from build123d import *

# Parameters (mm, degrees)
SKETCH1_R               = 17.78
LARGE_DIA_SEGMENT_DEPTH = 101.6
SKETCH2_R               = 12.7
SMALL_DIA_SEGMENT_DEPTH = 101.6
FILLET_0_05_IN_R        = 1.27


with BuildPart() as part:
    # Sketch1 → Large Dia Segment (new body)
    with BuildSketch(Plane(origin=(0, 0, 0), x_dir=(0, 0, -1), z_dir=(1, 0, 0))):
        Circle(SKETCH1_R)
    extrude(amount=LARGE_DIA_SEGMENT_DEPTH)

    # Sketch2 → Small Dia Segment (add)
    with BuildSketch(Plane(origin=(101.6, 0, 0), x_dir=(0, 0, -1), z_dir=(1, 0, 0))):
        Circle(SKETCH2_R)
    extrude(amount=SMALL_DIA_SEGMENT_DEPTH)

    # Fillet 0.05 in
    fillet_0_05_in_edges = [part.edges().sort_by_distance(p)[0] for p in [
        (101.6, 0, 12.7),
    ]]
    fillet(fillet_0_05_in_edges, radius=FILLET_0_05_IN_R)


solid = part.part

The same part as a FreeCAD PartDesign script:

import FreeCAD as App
import Part
import Sketcher

V = App.Vector
Q = App.Units.Quantity


def edges_at(feature, points):
    """Names of the edges that pass closest to the given points."""
    edges = feature.Shape.Edges
    near = lambda p: min(range(len(edges)), key=lambda i: edges[i].distToShape(Part.Vertex(*p))[0])
    return sorted({f"Edge{near(p) + 1}" for p in points})

doc = App.newDocument("Part")
body = doc.addObject("PartDesign::Body", "Body")

# Sketch on YZ plane
sketch1 = body.newObject("Sketcher::SketchObject", "Sketch")
sketch1.AttachmentSupport = (doc.getObject("YZ_Plane"), [""])
sketch1.MapMode = "FlatFace"
sketch1.addGeometry(Part.Circle(V(0, 0, 0), V(0, 0, 1), 18), False)
sketch1.addConstraint(Sketcher.Constraint("Coincident", 0, 3, -1, 1))
sketch1.addConstraint(Sketcher.Constraint("Diameter", 0, Q("1.4 in")))
pad1 = body.newObject("PartDesign::Pad", "Pad")
pad1.Profile = sketch1
pad1.Length = Q("4 in")

# Sketch on YZ plane
sketch2 = body.newObject("Sketcher::SketchObject", "Sketch001")
sketch2.AttachmentSupport = (doc.getObject("YZ_Plane"), [""])
sketch2.MapMode = "FlatFace"
sketch2.AttachmentOffset = App.Placement(V(0, 0, 4 * 25.4), App.Rotation())
sketch2.addGeometry(Part.Circle(V(0, 0, 0), V(0, 0, 1), 13), False)
sketch2.addConstraint(Sketcher.Constraint("Coincident", 0, 3, -1, 1))
sketch2.addConstraint(Sketcher.Constraint("Diameter", 0, Q("1 in")))
pad2 = body.newObject("PartDesign::Pad", "Pad001")
pad2.Profile = sketch2
pad2.Length = Q("4 in")
doc.recompute()

fillet = body.newObject("PartDesign::Fillet", "Fillet")
fillet.Base = (pad2, edges_at(pad2, [(101.6, 0, 12.7)]))
fillet.Radius = Q("0.05 in")

doc.recompute()
